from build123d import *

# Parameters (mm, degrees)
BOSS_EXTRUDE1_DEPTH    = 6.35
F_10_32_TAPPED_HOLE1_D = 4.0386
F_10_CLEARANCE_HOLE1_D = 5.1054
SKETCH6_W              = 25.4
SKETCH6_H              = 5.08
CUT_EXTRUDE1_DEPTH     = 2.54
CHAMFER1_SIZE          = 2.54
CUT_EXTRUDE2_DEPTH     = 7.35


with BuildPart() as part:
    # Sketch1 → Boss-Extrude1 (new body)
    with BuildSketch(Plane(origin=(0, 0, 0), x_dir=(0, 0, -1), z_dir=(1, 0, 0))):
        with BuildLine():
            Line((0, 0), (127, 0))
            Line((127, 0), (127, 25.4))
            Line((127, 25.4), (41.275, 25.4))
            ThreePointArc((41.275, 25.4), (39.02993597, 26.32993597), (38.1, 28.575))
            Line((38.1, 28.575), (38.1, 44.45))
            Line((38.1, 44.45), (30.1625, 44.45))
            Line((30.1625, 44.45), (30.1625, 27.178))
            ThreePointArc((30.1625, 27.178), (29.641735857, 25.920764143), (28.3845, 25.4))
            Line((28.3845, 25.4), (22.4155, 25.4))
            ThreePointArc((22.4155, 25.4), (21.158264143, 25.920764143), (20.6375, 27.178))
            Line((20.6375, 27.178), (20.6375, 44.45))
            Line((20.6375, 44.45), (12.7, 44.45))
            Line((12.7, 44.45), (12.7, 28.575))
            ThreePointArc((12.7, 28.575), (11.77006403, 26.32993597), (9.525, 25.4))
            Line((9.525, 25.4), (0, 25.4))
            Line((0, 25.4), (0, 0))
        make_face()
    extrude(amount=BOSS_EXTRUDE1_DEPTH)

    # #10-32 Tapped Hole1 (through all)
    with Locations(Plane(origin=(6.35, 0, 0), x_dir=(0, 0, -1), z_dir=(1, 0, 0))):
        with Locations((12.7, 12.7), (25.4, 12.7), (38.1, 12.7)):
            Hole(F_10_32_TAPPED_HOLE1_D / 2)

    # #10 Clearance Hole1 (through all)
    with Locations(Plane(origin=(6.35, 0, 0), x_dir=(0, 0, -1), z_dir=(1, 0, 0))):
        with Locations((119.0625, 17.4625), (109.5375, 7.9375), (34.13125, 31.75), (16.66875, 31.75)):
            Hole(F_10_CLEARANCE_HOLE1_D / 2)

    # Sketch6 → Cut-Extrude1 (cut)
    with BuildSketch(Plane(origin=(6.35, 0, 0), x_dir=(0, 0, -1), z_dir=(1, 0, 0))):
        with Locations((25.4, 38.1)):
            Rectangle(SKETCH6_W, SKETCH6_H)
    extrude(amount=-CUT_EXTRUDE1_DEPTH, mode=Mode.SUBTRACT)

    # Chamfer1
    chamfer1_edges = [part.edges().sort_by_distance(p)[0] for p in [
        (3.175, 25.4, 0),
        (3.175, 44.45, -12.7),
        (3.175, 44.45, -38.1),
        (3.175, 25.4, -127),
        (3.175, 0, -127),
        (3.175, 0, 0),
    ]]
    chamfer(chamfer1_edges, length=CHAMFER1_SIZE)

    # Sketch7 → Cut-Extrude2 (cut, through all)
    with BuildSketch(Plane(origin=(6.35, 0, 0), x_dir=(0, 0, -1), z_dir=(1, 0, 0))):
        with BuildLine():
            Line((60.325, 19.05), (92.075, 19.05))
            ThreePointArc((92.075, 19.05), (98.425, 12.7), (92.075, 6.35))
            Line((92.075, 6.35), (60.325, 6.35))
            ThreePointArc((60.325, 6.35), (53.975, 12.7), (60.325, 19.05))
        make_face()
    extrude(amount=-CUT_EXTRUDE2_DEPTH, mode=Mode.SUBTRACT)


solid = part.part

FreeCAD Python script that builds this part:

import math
import FreeCAD as App
import Part
import Sketcher
from FreeCAD import Vector
Q = App.Units.Quantity


def edges_at(feature, points):
    """Names of the edges that pass closest to the given points."""
    edges = feature.Shape.Edges
    near = lambda p: min(range(len(edges)), key=lambda i: edges[i].distToShape(Part.Vertex(*p))[0])
    return sorted({f"Edge{near(p) + 1}" for p in points})


def add_polygon(sketch, points):
    """Adds a closed chain of lines whose ends are joined by coincident constraints."""
    first, n = sketch.GeometryCount, len(points)
    for a, b in zip(points, points[1:] + points[:1]):
        sketch.addGeometry(Part.LineSegment(App.Vector(*a, 0), App.Vector(*b, 0)), False)
    for i in range(n):
        sketch.addConstraint(Sketcher.Constraint("Coincident", first + i, 2, first + (i + 1) % n, 1))

doc = App.newDocument("Part")
body = doc.addObject("PartDesign::Body", "Body")

# Sketch on YZ plane
sketch1 = body.newObject("Sketcher::SketchObject", "Sketch")
sketch1.AttachmentSupport = (doc.getObject("YZ_Plane"), [""])
sketch1.MapMode = "FlatFace"
sketch1.addGeometry(Part.LineSegment(Vector(0, 0, 0), Vector(0, -127, 0)), False)
sketch1.addGeometry(Part.LineSegment(Vector(0, -127, 0), Vector(25.4, -127, 0)), False)
sketch1.addGeometry(Part.LineSegment(Vector(25.4, -127, 0), Vector(25.4, -41.3, 0)), False)
sketch1.addGeometry(Part.ArcOfCircle(Part.Circle(Vector(28.6, -41.3, 0), Vector(0, 0, 1), 3.2), math.radians(90), math.radians(180)), False)
sketch1.addGeometry(Part.LineSegment(Vector(28.6, -38.1, 0), Vector(44.5, -38.1, 0)), False)
sketch1.addGeometry(Part.LineSegment(Vector(44.5, -38.1, 0), Vector(44.5, -30.2, 0)), False)
sketch1.addGeometry(Part.LineSegment(Vector(44.5, -30.2, 0), Vector(27.2, -30.2, 0)), False)
sketch1.addGeometry(Part.ArcOfCircle(Part.Circle(Vector(27.2, -28.4, 0), Vector(0, 0, 1), 1.8), math.radians(180), math.radians(270)), False)
sketch1.addGeometry(Part.LineSegment(Vector(25.4, -28.4, 0), Vector(25.4, -22.4, 0)), False)
sketch1.addGeometry(Part.ArcOfCircle(Part.Circle(Vector(27.2, -22.4, 0), Vector(0, 0, 1), 1.8), math.radians(90), math.radians(180)), False)
sketch1.addGeometry(Part.LineSegment(Vector(27.2, -20.6, 0), Vector(44.5, -20.6, 0)), False)
sketch1.addGeometry(Part.LineSegment(Vector(44.5, -20.6, 0), Vector(44.5, -12.7, 0)), False)
sketch1.addGeometry(Part.LineSegment(Vector(44.5, -12.7, 0), Vector(28.6, -12.7, 0)), False)
sketch1.addGeometry(Part.ArcOfCircle(Part.Circle(Vector(28.6, -9.5, 0), Vector(0, 0, 1), 3.2), math.radians(-180), math.radians(-90)), False)
sketch1.addGeometry(Part.LineSegment(Vector(25.4, -9.5, 0), Vector(25.4, 0, 0)), False)
sketch1.addGeometry(Part.LineSegment(Vector(25.4, 0, 0), Vector(0, 0, 0)), False)
sketch1.addConstraint(Sketcher.Constraint("Coincident", 0, 2, 1, 1))
sketch1.addConstraint(Sketcher.Constraint("Coincident", 1, 2, 2, 1))
sketch1.addConstraint(Sketcher.Constraint("Tangent", 2, 2, 3, 2))
sketch1.addConstraint(Sketcher.Constraint("Tangent", 3, 1, 4, 1))
sketch1.addConstraint(Sketcher.Constraint("Coincident", 4, 2, 5, 1))
sketch1.addConstraint(Sketcher.Constraint("Coincident", 5, 2, 6, 1))
sketch1.addConstraint(Sketcher.Constraint("Tangent", 6, 2, 7, 2))
sketch1.addConstraint(Sketcher.Constraint("Tangent", 7, 1, 8, 1))
sketch1.addConstraint(Sketcher.Constraint("Tangent", 8, 2, 9, 2))
sketch1.addConstraint(Sketcher.Constraint("Tangent", 9, 1, 10, 1))
sketch1.addConstraint(Sketcher.Constraint("Coincident", 10, 2, 11, 1))
sketch1.addConstraint(Sketcher.Constraint("Coincident", 11, 2, 12, 1))
sketch1.addConstraint(Sketcher.Constraint("Tangent", 12, 2, 13, 2))
sketch1.addConstraint(Sketcher.Constraint("Tangent", 13, 1, 14, 1))
sketch1.addConstraint(Sketcher.Constraint("Coincident", 14, 2, 15, 1))
sketch1.addConstraint(Sketcher.Constraint("Coincident", 15, 2, 0, 1))
sketch1.addConstraint(Sketcher.Constraint("Vertical", 0))
sketch1.addConstraint(Sketcher.Constraint("Horizontal", 1))
sketch1.addConstraint(Sketcher.Constraint("Vertical", 2))
sketch1.addConstraint(Sketcher.Constraint("Horizontal", 4))
sketch1.addConstraint(Sketcher.Constraint("Vertical", 5))
sketch1.addConstraint(Sketcher.Constraint("Horizontal", 6))
sketch1.addConstraint(Sketcher.Constraint("Vertical", 8))
sketch1.addConstraint(Sketcher.Constraint("Horizontal", 10))
sketch1.addConstraint(Sketcher.Constraint("Vertical", 11))
sketch1.addConstraint(Sketcher.Constraint("Horizontal", 12))
sketch1.addConstraint(Sketcher.Constraint("Vertical", 14))
sketch1.addConstraint(Sketcher.Constraint("Horizontal", 15))
sketch1.addConstraint(Sketcher.Constraint("Coincident", 15, 2, -1, 1))
sketch1.addConstraint(Sketcher.Constraint("Equal", 7, 9))
sketch1.addConstraint(Sketcher.Constraint("Equal", 3, 13))
sketch1.addConstraint(Sketcher.Constraint("Vertical", 3, 3, 13, 3))
sketch1.addConstraint(Sketcher.Constraint("Vertical", 2, 2, 7, 1))
sketch1.addConstraint(Sketcher.Constraint("Vertical", 5, 2, 10, 2))
sketch1.addConstraint(Sketcher.Constraint("Equal", 5, 11))
sketch1.addConstraint(Sketcher.Constraint("DistanceX", 1, 1, 1, 2, Q("1 in")))
sketch1.addConstraint(Sketcher.Constraint("DistanceY", 0, 2, 0, 1, Q("5 in")))
sketch1.addConstraint(Sketcher.Constraint("Radius", 7, Q("0.07 in")))
sketch1.addConstraint(Sketcher.Constraint("Radius", 3, Q("0.125 in")))
sketch1.addConstraint(Sketcher.Constraint("DistanceX", 6, 2, 6, 1, Q("0.68 in")))
sketch1.addConstraint(Sketcher.Constraint("DistanceY", 3, 1, -1, 1, Q("1.5 in")))
sketch1.addConstraint(Sketcher.Constraint("DistanceY", 11, 2, -1, 1, Q("0.5 in")))
sketch1.addConstraint(Sketcher.Constraint("DistanceY", 5, 1, 5, 2, Q("0.3125 in")))
pad1 = body.newObject("PartDesign::Pad", "Pad")
pad1.Profile = sketch1
pad1.Length = Q("0.25 in")

# Sketch on YZ plane
sketch2 = body.newObject("Sketcher::SketchObject", "Sketch001")
sketch2.AttachmentSupport = (doc.getObject("YZ_Plane"), [""])
sketch2.MapMode = "FlatFace"
sketch2.AttachmentOffset = App.Placement(Vector(0, 0, 0.25 * 25.4), App.Rotation())
sketch2.addGeometry(Part.Circle(Vector(12.7, -12.7, 0), Vector(0, 0, 1), 2), False)
sketch2.addGeometry(Part.Circle(Vector(12.7, -25.4, 0), Vector(0, 0, 1), 2), False)
sketch2.addGeometry(Part.Circle(Vector(12.7, -38.1, 0), Vector(0, 0, 1), 2), False)
sketch2.addConstraint(Sketcher.Constraint("Equal", 0, 1))
sketch2.addConstraint(Sketcher.Constraint("Equal", 1, 2))
sketch2.addConstraint(Sketcher.Constraint("Vertical", 0, 3, 1, 3))
sketch2.addConstraint(Sketcher.Constraint("Vertical", 1, 3, 2, 3))
sketch2.addConstraint(Sketcher.Constraint("Diameter", 0, Q("0.159 in")))
sketch2.addConstraint(Sketcher.Constraint("DistanceY", 1, 3, -1, 1, Q("1 in")))
sketch2.addConstraint(Sketcher.Constraint("DistanceY", 2, 3, 0, 3, Q("1 in")))
sketch2.addConstraint(Sketcher.Constraint("DistanceX", -1, 1, 0, 3, Q("0.5 in")))
sketch2.addConstraint(Sketcher.Constraint("DistanceY", 0, 3, -1, 1, Q("0.5 in")))
doc.recompute()
hole = body.newObject("PartDesign::Hole", "Hole")
hole.Profile = sketch2
hole.ThreadType = "None"
hole.Diameter = Q("0.159 in")
hole.DepthType = "ThroughAll"

# Sketch on YZ plane
sketch3 = body.newObject("Sketcher::SketchObject", "Sketch002")
sketch3.AttachmentSupport = (doc.getObject("YZ_Plane"), [""])
sketch3.MapMode = "FlatFace"
sketch3.AttachmentOffset = App.Placement(Vector(0, 0, 0.25 * 25.4), App.Rotation())
sketch3.addGeometry(Part.Circle(Vector(17.5, -119.1, 0), Vector(0, 0, 1), 2.6), False)
sketch3.addGeometry(Part.Circle(Vector(7.9, -109.5, 0), Vector(0, 0, 1), 2.6), False)
sketch3.addGeometry(Part.Circle(Vector(31.8, -34.1, 0), Vector(0, 0, 1), 2.6), False)
sketch3.addGeometry(Part.Circle(Vector(31.8, -16.7, 0), Vector(0, 0, 1), 2.6), False)
sketch3.addConstraint(Sketcher.Constraint("Equal", 0, 1))
sketch3.addConstraint(Sketcher.Constraint("Equal", 1, 2))
sketch3.addConstraint(Sketcher.Constraint("Equal", 2, 3))
sketch3.addConstraint(Sketcher.Constraint("Vertical", 2, 3, 3, 3))
sketch3.addConstraint(Sketcher.Constraint("Diameter", 0, Q("0.201 in")))
sketch3.addConstraint(Sketcher.Constraint("DistanceX", -1, 1, 2, 3, Q("1.25 in")))
sketch3.addConstraint(Sketcher.Constraint("DistanceX", -1, 1, 0, 3, Q("0.6875 in")))
sketch3.addConstraint(Sketcher.Constraint("DistanceY", 0, 3, -1, 1, Q("4.6875 in")))
sketch3.addConstraint(Sketcher.Constraint("DistanceX", -1, 1, 1, 3, Q("0.3125 in")))
sketch3.addConstraint(Sketcher.Constraint("DistanceY", 1, 3, -1, 1, Q("4.3125 in")))
sketch3.addConstraint(Sketcher.Constraint("DistanceY", 2, 3, -1, 1, Q("1.34375 in")))
sketch3.addConstraint(Sketcher.Constraint("DistanceY", 3, 3, -1, 1, Q("0.65625 in")))
doc.recompute()
hole2 = body.newObject("PartDesign::Hole", "Hole001")
hole2.Profile = sketch3
hole2.ThreadType = "None"
hole2.Diameter = Q("0.201 in")
hole2.DepthType = "ThroughAll"

# Sketch on YZ plane
sketch4 = body.newObject("Sketcher::SketchObject", "Sketch003")
sketch4.AttachmentSupport = (doc.getObject("YZ_Plane"), [""])
sketch4.MapMode = "FlatFace"
sketch4.AttachmentOffset = App.Placement(Vector(0, 0, 0.25 * 25.4), App.Rotation())
add_polygon(sketch4, [(41, -13), (36, -13), (36, -38), (41, -38)])  # lines 0-3
sketch4.addConstraint(Sketcher.Constraint("Horizontal", 0))
sketch4.addConstraint(Sketcher.Constraint("Vertical", 1))
sketch4.addConstraint(Sketcher.Constraint("Horizontal", 2))
sketch4.addConstraint(Sketcher.Constraint("Vertical", 3))
sketch4.addConstraint(Sketcher.Constraint("DistanceY", 1, 2, 1, 1, Q("1 in")))
sketch4.addConstraint(Sketcher.Constraint("DistanceX", 0, 2, 0, 1, Q("0.2 in")))
sketch4.addConstraint(Sketcher.Constraint("DistanceX", -1, 1, 0, 2, Q("1.4 in")))
sketch4.addConstraint(Sketcher.Constraint("DistanceY", 0, 2, -1, 1, Q("0.5 in")))
pocket1 = body.newObject("PartDesign::Pocket", "Pocket")
pocket1.Profile = sketch4
pocket1.Length = Q("0.1 in")
doc.recompute()

chamfer = body.newObject("PartDesign::Chamfer", "Chamfer")
chamfer.Base = (pocket1, edges_at(pocket1, [
    (3.175, 25.4, 0),
    (3.175, 44.45, -12.7),
    (3.175, 44.45, -38.1),
    (3.175, 25.4, -127),
    (3.175, 0, -127),
    (3.175, 0, 0),
]))
chamfer.Size = Q("0.1 in")

# Sketch on YZ plane
sketch5 = body.newObject("Sketcher::SketchObject", "Sketch004")
sketch5.AttachmentSupport = (doc.getObject("YZ_Plane"), [""])
sketch5.MapMode = "FlatFace"
sketch5.AttachmentOffset = App.Placement(Vector(0, 0, 0.25 * 25.4), App.Rotation())
sketch5.addGeometry(Part.LineSegment(Vector(19, -92, 0), Vector(19, -60, 0)), False)
sketch5.addGeometry(Part.ArcOfCircle(Part.Circle(Vector(13, -60, 0), Vector(0, 0, 1), 6), math.radians(0), math.radians(180)), False)
sketch5.addGeometry(Part.LineSegment(Vector(6, -60, 0), Vector(6, -92, 0)), False)
sketch5.addGeometry(Part.ArcOfCircle(Part.Circle(Vector(13, -92, 0), Vector(0, 0, 1), 6), math.radians(180), math.radians(360)), False)
sketch5.addConstraint(Sketcher.Constraint("Tangent", 0, 2, 1, 1))
sketch5.addConstraint(Sketcher.Constraint("Tangent", 1, 2, 2, 1))
sketch5.addConstraint(Sketcher.Constraint("Tangent", 2, 2, 3, 1))
sketch5.addConstraint(Sketcher.Constraint("Tangent", 3, 2, 0, 1))
sketch5.addConstraint(Sketcher.Constraint("Vertical", 0))
sketch5.addConstraint(Sketcher.Constraint("Vertical", 2))
sketch5.addConstraint(Sketcher.Constraint("Radius", 1, Q("0.25 in")))
sketch5.addConstraint(Sketcher.Constraint("DistanceY", 0, 1, 0, 2, Q("1.25 in")))
sketch5.addConstraint(Sketcher.Constraint("DistanceX", -1, 1, 1, 3, Q("0.5 in")))
sketch5.addConstraint(Sketcher.Constraint("DistanceY", 1, 3, -1, 1, Q("2.375 in")))
pocket2 = body.newObject("PartDesign::Pocket", "Pocket001")
pocket2.Profile = sketch5
pocket2.Type = "ThroughAll"

doc.recompute()
